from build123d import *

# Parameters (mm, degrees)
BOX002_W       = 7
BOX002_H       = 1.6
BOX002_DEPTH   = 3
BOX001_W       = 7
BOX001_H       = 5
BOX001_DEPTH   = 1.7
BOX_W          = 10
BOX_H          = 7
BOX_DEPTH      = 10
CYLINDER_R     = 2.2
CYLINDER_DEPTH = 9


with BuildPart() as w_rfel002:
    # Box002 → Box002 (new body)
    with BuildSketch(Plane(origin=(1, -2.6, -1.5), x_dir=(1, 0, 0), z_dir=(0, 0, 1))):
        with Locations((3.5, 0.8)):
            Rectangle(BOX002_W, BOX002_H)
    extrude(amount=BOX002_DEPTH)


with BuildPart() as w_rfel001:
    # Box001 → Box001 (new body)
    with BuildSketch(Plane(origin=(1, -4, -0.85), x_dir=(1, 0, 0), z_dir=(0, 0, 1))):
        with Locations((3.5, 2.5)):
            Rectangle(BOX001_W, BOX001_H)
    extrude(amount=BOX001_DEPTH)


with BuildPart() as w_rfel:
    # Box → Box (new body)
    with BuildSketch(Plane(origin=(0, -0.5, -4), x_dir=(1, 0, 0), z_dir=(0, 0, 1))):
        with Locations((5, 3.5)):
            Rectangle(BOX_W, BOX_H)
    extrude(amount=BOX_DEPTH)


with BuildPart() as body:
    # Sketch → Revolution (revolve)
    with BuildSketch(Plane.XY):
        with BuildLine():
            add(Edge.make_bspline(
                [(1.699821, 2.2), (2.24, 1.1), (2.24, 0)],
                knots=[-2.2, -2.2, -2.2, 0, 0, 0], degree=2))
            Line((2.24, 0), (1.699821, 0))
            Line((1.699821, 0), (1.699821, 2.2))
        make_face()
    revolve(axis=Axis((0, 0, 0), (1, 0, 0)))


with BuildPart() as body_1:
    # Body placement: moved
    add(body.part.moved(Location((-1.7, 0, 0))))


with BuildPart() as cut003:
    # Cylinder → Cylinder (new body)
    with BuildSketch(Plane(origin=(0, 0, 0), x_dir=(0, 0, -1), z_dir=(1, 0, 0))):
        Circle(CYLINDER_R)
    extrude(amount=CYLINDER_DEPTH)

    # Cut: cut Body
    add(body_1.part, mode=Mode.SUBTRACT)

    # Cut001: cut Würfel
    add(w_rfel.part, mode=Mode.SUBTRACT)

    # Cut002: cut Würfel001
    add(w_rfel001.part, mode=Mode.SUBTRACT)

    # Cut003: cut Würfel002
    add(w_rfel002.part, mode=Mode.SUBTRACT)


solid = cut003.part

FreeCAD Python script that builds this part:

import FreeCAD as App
import Part
import Sketcher
from FreeCAD import Vector
Q = App.Units.Quantity

doc = App.newDocument("Part")
body = doc.addObject("PartDesign::Body", "Body")

# Sketch on XY plane
sketch1 = doc.addObject("Sketcher::SketchObject", "Sketch")
body.addObject(sketch1)
sketch1.AttachmentSupport = (doc.XY_Plane, [""])
sketch1.MapMode = "FlatFace"
sketch1.AttachmentOffset = App.Placement(Vector(0, 0, -1.5), App.Rotation())
sketch1.addGeometry([
    Part.LineSegment(Vector(1, -1, 0), Vector(1, -2.6, 0)),
    Part.LineSegment(Vector(1, -2.6, 0), Vector(8, -2.6, 0)),
    Part.LineSegment(Vector(8, -2.6, 0), Vector(8, -1, 0)),
    Part.LineSegment(Vector(8, -1, 0), Vector(1, -1, 0)),
], False)
sketch1.addConstraint([
    Sketcher.Constraint("Coincident", 0, 2, 1, 1),
    Sketcher.Constraint("Coincident", 1, 2, 2, 1),
    Sketcher.Constraint("Coincident", 2, 2, 3, 1),
    Sketcher.Constraint("Coincident", 3, 2, 0, 1),
    Sketcher.Constraint("Vertical", 0),
    Sketcher.Constraint("Horizontal", 1),
    Sketcher.Constraint("Vertical", 2),
    Sketcher.Constraint("Horizontal", 3),
    Sketcher.Constraint("DistanceX", 1, 1, 1, 2, Q("7 mm")),
    Sketcher.Constraint("DistanceY", 0, 2, 0, 1, Q("1.6 mm")),
    Sketcher.Constraint("DistanceX", -1, 1, 0, 2, Q("1 mm")),
    Sketcher.Constraint("DistanceY", 2, 2, -1, 1, Q("1 mm")),
])
pad1 = doc.addObject("PartDesign::Pad", "Pad")
body.addObject(pad1)
pad1.Profile = sketch1
pad1.Length = 3
body2 = doc.addObject("PartDesign::Body", "Body001")

# Sketch on XY plane
sketch2 = doc.addObject("Sketcher::SketchObject", "Sketch001")
body2.addObject(sketch2)
sketch2.AttachmentSupport = (doc.getObject("XY_Plane001"), [""])
sketch2.MapMode = "FlatFace"
sketch2.AttachmentOffset = App.Placement(Vector(0, 0, -0.85), App.Rotation())
sketch2.addGeometry([
    Part.LineSegment(Vector(1, 1, 0), Vector(1, -4, 0)),
    Part.LineSegment(Vector(1, -4, 0), Vector(8, -4, 0)),
    Part.LineSegment(Vector(8, -4, 0), Vector(8, 1, 0)),
    Part.LineSegment(Vector(8, 1, 0), Vector(1, 1, 0)),
], False)
sketch2.addConstraint([
    Sketcher.Constraint("Coincident", 0, 2, 1, 1),
    Sketcher.Constraint("Coincident", 1, 2, 2, 1),
    Sketcher.Constraint("Coincident", 2, 2, 3, 1),
    Sketcher.Constraint("Coincident", 3, 2, 0, 1),
    Sketcher.Constraint("Vertical", 0),
    Sketcher.Constraint("Horizontal", 1),
    Sketcher.Constraint("Vertical", 2),
    Sketcher.Constraint("Horizontal", 3),
    Sketcher.Constraint("DistanceX", 1, 1, 1, 2, Q("7 mm")),
    Sketcher.Constraint("DistanceY", 0, 2, 0, 1, Q("5 mm")),
    Sketcher.Constraint("DistanceX", -1, 1, 0, 2, Q("1 mm")),
    Sketcher.Constraint("DistanceY", 0, 2, -1, 1, Q("4 mm")),
])
pad2 = doc.addObject("PartDesign::Pad", "Pad001")
body2.addObject(pad2)
pad2.Profile = sketch2
pad2.Length = 1.7
body3 = doc.addObject("PartDesign::Body", "Body002")

# Sketch on XY plane
sketch3 = doc.addObject("Sketcher::SketchObject", "Sketch002")
body3.addObject(sketch3)
sketch3.AttachmentSupport = (doc.getObject("XY_Plane002"), [""])
sketch3.MapMode = "FlatFace"
sketch3.AttachmentOffset = App.Placement(Vector(0, 0, -4), App.Rotation())
sketch3.addGeometry([
    Part.LineSegment(Vector(0, 6.5, 0), Vector(0, -0.5, 0)),
    Part.LineSegment(Vector(0, -0.5, 0), Vector(10, -0.5, 0)),
    Part.LineSegment(Vector(10, -0.5, 0), Vector(10, 6.5, 0)),
    Part.LineSegment(Vector(10, 6.5, 0), Vector(0, 6.5, 0)),
], False)
sketch3.addConstraint([
    Sketcher.Constraint("Coincident", 0, 2, 1, 1),
    Sketcher.Constraint("Coincident", 1, 2, 2, 1),
    Sketcher.Constraint("Coincident", 2, 2, 3, 1),
    Sketcher.Constraint("Coincident", 3, 2, 0, 1),
    Sketcher.Constraint("Vertical", 0),
    Sketcher.Constraint("Horizontal", 1),
    Sketcher.Constraint("Vertical", 2),
    Sketcher.Constraint("Horizontal", 3),
    Sketcher.Constraint("PointOnObject", 0, 2, -2),
    Sketcher.Constraint("DistanceX", 1, 1, 1, 2, Q("10 mm")),
    Sketcher.Constraint("DistanceY", 0, 2, 0, 1, Q("7 mm")),
    Sketcher.Constraint("DistanceY", 0, 2, -1, 1, Q("0.5 mm")),
])
pad3 = doc.addObject("PartDesign::Pad", "Pad002")
body3.addObject(pad3)
pad3.Profile = sketch3
pad3.Length = 10
body4 = doc.addObject("PartDesign::Body", "Body003")

# Sketch on XY plane
sketch4 = doc.addObject("Sketcher::SketchObject", "Sketch003")
body4.addObject(sketch4)
sketch4.AttachmentSupport = (doc.getObject("XY_Plane003"), [""])
sketch4.MapMode = "FlatFace"
sketch4.addGeometry([
    Part.BSplineCurve([Vector(1.699821, 2.2, 0), Vector(2.24, 1.1, 0), Vector(2.24, 0, 0)], [3, 3], [-2.2, 0], False, 2, [1, 1, 1], False),
    Part.LineSegment(Vector(1.699821, 2.2, 0), Vector(1.699821, 0, 0)),
    Part.LineSegment(Vector(1.699821, 0, 0), Vector(2.24, 0, 0)),
], False)
sketch4.addConstraint([
    Sketcher.Constraint("Block", 0),
    Sketcher.Constraint("Coincident", 0, 1, 1, 1),
    Sketcher.Constraint("Coincident", 1, 2, 2, 1),
    Sketcher.Constraint("Coincident", 2, 2, 0, 2),
    Sketcher.Constraint("Vertical", 1),
    Sketcher.Constraint("Horizontal", 2),
])
revolution = doc.addObject("PartDesign::Revolution", "Revolution")
body4.addObject(revolution)
revolution.Profile = sketch4
revolution.ReferenceAxis = (sketch4, ["H_Axis"])
revolution.Angle = 360
body5 = doc.addObject("PartDesign::Body", "Body004")
doc.recompute()

body4.Placement = App.Placement(Vector(-1.7, 0, 0), App.Rotation(Vector(0, 0, 1), 0))
boolean = doc.addObject("PartDesign::Boolean", "Boolean")
body5.addObject(boolean)
boolean.Type = "Fuse"
boolean.addObjects([body4])
body6 = doc.addObject("PartDesign::Body", "Body005")

# Sketch on YZ plane
sketch5 = doc.addObject("Sketcher::SketchObject", "Sketch004")
body6.addObject(sketch5)
sketch5.AttachmentSupport = (doc.getObject("YZ_Plane005"), [""])
sketch5.MapMode = "FlatFace"
sketch5.addGeometry(Part.Circle(Vector(0, 0, 0), Vector(0, 0, 1), 2.2), False)
sketch5.addConstraint([
    Sketcher.Constraint("Coincident", 0, 3, -1, 1),
    Sketcher.Constraint("Diameter", 0, Q("4.4 mm")),
])
pad4 = doc.addObject("PartDesign::Pad", "Pad003")
body6.addObject(pad4)
pad4.Profile = sketch5
pad4.Length = 9
doc.recompute()

boolean2 = doc.addObject("PartDesign::Boolean", "Boolean001")
body6.addObject(boolean2)
boolean2.Type = "Cut"
boolean2.addObjects([body5])
doc.recompute()

boolean3 = doc.addObject("PartDesign::Boolean", "Boolean002")
body6.addObject(boolean3)
boolean3.Type = "Cut"
boolean3.addObjects([body3])
doc.recompute()

boolean4 = doc.addObject("PartDesign::Boolean", "Boolean003")
body6.addObject(boolean4)
boolean4.Type = "Cut"
boolean4.addObjects([body2])
doc.recompute()

boolean5 = doc.addObject("PartDesign::Boolean", "Boolean004")
body6.addObject(boolean5)
boolean5.Type = "Cut"
boolean5.addObjects([body])

doc.recompute()
